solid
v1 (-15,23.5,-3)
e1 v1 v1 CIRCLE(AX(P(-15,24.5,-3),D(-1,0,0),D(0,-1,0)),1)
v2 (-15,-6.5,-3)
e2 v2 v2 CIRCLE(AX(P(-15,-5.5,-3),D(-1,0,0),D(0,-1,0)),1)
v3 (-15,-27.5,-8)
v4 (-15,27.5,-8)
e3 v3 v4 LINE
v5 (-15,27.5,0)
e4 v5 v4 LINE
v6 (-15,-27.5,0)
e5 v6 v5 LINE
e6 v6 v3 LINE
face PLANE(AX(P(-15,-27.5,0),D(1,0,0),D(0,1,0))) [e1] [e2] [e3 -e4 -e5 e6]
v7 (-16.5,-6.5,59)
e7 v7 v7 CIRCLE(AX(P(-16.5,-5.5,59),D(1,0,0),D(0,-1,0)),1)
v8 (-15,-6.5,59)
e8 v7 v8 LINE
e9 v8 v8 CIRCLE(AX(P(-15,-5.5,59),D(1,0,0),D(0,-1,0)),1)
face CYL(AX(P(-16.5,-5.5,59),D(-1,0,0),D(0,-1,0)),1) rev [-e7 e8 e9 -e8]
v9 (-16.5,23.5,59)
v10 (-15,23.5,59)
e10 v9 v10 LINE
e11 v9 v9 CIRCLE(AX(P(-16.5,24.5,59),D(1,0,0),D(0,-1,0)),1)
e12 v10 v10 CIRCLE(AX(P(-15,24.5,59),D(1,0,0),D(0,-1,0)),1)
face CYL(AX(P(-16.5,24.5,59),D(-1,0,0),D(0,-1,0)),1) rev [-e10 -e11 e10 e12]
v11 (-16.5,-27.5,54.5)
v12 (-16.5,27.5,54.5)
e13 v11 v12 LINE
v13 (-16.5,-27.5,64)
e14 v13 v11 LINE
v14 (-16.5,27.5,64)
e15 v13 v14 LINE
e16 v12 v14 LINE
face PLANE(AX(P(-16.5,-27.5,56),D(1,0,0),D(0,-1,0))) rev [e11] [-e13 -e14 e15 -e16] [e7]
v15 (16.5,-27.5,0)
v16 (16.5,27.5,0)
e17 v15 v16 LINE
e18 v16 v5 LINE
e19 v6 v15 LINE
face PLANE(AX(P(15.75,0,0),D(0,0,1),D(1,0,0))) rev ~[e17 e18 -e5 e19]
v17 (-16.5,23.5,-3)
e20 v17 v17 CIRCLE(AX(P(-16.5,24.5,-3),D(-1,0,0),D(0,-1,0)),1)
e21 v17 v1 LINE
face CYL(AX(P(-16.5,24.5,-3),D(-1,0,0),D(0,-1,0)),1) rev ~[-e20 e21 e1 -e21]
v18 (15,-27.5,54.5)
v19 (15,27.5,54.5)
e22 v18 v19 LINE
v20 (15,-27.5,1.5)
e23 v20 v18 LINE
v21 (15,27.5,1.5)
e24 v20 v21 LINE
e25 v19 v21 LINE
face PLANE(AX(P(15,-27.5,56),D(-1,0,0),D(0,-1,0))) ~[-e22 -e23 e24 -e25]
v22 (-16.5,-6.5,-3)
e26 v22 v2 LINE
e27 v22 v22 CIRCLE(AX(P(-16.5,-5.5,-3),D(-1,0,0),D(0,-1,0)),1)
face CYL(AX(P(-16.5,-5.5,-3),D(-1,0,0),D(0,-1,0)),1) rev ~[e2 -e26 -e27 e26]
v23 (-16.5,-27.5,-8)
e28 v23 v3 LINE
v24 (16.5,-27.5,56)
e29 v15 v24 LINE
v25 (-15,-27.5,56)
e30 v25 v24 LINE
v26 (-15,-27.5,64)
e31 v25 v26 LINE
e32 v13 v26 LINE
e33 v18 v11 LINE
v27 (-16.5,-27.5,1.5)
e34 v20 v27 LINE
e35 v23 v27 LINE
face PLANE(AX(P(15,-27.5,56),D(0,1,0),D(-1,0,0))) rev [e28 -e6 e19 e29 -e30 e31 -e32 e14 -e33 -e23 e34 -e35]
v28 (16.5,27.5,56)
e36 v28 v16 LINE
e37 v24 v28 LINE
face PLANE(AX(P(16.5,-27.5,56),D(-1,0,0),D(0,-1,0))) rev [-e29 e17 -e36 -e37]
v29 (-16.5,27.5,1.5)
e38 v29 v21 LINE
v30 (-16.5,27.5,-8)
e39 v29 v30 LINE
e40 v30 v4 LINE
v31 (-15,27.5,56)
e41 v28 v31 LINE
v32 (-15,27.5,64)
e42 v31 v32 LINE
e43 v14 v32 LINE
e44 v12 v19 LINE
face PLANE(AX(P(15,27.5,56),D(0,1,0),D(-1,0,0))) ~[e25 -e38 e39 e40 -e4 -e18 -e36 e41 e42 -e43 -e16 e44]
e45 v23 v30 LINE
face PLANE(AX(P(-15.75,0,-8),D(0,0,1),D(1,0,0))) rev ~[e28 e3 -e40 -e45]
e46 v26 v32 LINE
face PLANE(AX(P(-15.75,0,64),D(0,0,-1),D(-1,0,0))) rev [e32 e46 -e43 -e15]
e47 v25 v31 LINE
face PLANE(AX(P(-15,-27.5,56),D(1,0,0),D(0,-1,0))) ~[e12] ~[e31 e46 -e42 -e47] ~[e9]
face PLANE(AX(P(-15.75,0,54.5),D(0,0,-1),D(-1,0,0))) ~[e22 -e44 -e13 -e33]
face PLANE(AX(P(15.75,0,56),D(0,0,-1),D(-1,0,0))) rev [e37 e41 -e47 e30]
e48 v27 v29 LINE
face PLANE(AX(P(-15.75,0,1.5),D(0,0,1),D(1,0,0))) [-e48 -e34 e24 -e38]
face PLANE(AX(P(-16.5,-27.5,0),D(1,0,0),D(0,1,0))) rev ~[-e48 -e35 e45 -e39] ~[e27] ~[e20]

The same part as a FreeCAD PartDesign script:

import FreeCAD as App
import Part
import Sketcher
from FreeCAD import Vector
Q = App.Units.Quantity

doc = App.newDocument("Part")
body = doc.addObject("PartDesign::Body", "Body")

sketch1 = body.newObject("Sketcher::SketchObject", "Sketch")
sketch1.AttachmentSupport = (doc.getObject("XY_Plane"), [""])
sketch1.MapMode = "FlatFace"
sketch1.addGeometry(Part.LineSegment(Vector(-15, 28, 0), Vector(-15, -28, 0)), False)
sketch1.addGeometry(Part.LineSegment(Vector(-15, -28, 0), Vector(15, -28, 0)), False)
sketch1.addGeometry(Part.LineSegment(Vector(15, -28, 0), Vector(15, 28, 0)), False)
sketch1.addGeometry(Part.LineSegment(Vector(15, 28, 0), Vector(-15, 28, 0)), False)
sketch1.addConstraint(Sketcher.Constraint("Coincident", 0, 2, 1, 1))
sketch1.addConstraint(Sketcher.Constraint("Coincident", 1, 2, 2, 1))
sketch1.addConstraint(Sketcher.Constraint("Coincident", 2, 2, 3, 1))
sketch1.addConstraint(Sketcher.Constraint("Coincident", 3, 2, 0, 1))
sketch1.addConstraint(Sketcher.Constraint("Vertical", 0))
sketch1.addConstraint(Sketcher.Constraint("Horizontal", 1))
sketch1.addConstraint(Sketcher.Constraint("Vertical", 2))
sketch1.addConstraint(Sketcher.Constraint("Horizontal", 3))
sketch1.addConstraint(Sketcher.Constraint("Symmetric", 0, 2, 2, 2, -1, 1))
sketch1.addConstraint(Sketcher.Constraint("DistanceX", 1, 1, 1, 2, Q("30 mm")))
sketch1.addConstraint(Sketcher.Constraint("DistanceY", 0, 2, 0, 1, Q("55 mm")))
pad1 = body.newObject("PartDesign::Pad", "Pad")
pad1.Profile = sketch1
pad1.Length = 1.5

sketch2 = body.newObject("Sketcher::SketchObject", "Sketch001")
sketch2.AttachmentSupport = (doc.getObject("XY_Plane"), [""])
sketch2.MapMode = "FlatFace"
sketch2.addGeometry(Part.LineSegment(Vector(-16.5, 27.5, 0), Vector(-16.5, -27.5, 0)), False)
sketch2.addGeometry(Part.LineSegment(Vector(-16.5, -27.5, 0), Vector(-15, -27.5, 0)), False)
sketch2.addGeometry(Part.LineSegment(Vector(-15, -27.5, 0), Vector(-15, 27.5, 0)), False)
sketch2.addGeometry(Part.LineSegment(Vector(-15, 27.5, 0), Vector(-16.5, 27.5, 0)), False)
sketch2.addConstraint(Sketcher.Constraint("Coincident", 0, 2, 1, 1))
sketch2.addConstraint(Sketcher.Constraint("Coincident", 1, 2, 2, 1))
sketch2.addConstraint(Sketcher.Constraint("Coincident", 2, 2, 3, 1))
sketch2.addConstraint(Sketcher.Constraint("Coincident", 3, 2, 0, 1))
sketch2.addConstraint(Sketcher.Constraint("Vertical", 0))
sketch2.addConstraint(Sketcher.Constraint("Horizontal", 1))
sketch2.addConstraint(Sketcher.Constraint("Vertical", 2))
sketch2.addConstraint(Sketcher.Constraint("Horizontal", 3))
sketch2.addConstraint(Sketcher.Constraint("DistanceY", 0, 2, 0, 1, Q("55 mm")))
sketch2.addConstraint(Sketcher.Constraint("DistanceX", 1, 1, 1, 2, Q("1.5 mm")))
sketch2.addConstraint(Sketcher.Constraint("DistanceX", 1, 2, -1, 1, Q("15 mm")))
sketch2.addConstraint(Sketcher.Constraint("DistanceY", 0, 2, -1, 1, Q("27.5 mm")))
pad2 = body.newObject("PartDesign::Pad", "Pad001")
pad2.Profile = sketch2
pad2.Type = "TwoLengths"
pad2.Length = 1.5
pad2.Length2 = 8

sketch3 = body.newObject("Sketcher::SketchObject", "Sketch002")
sketch3.AttachmentSupport = (doc.getObject("XY_Plane"), [""])
sketch3.MapMode = "FlatFace"
sketch3.addGeometry(Part.LineSegment(Vector(15, 27.5, 0), Vector(15, -27.5, 0)), False)
sketch3.addGeometry(Part.LineSegment(Vector(15, -27.5, 0), Vector(16.5, -27.5, 0)), False)
sketch3.addGeometry(Part.LineSegment(Vector(16.5, -27.5, 0), Vector(16.5, 27.5, 0)), False)
sketch3.addGeometry(Part.LineSegment(Vector(16.5, 27.5, 0), Vector(15, 27.5, 0)), False)
sketch3.addConstraint(Sketcher.Constraint("Coincident", 0, 2, 1, 1))
sketch3.addConstraint(Sketcher.Constraint("Coincident", 1, 2, 2, 1))
sketch3.addConstraint(Sketcher.Constraint("Coincident", 2, 2, 3, 1))
sketch3.addConstraint(Sketcher.Constraint("Coincident", 3, 2, 0, 1))
sketch3.addConstraint(Sketcher.Constraint("Vertical", 0))
sketch3.addConstraint(Sketcher.Constraint("Horizontal", 1))
sketch3.addConstraint(Sketcher.Constraint("Vertical", 2))
sketch3.addConstraint(Sketcher.Constraint("Horizontal", 3))
sketch3.addConstraint(Sketcher.Constraint("DistanceY", 0, 2, 0, 1, Q("55 mm")))
sketch3.addConstraint(Sketcher.Constraint("DistanceX", 1, 1, 1, 2, Q("1.5 mm")))
sketch3.addConstraint(Sketcher.Constraint("DistanceX", -1, 1, 0, 2, Q("15 mm")))
sketch3.addConstraint(Sketcher.Constraint("DistanceY", 0, 2, -1, 1, Q("27.5 mm")))
pad3 = body.newObject("PartDesign::Pad", "Pad002")
pad3.Profile = sketch3
pad3.Length = 28

sketch4 = body.newObject("Sketcher::SketchObject", "Sketch003")
sketch4.AttachmentSupport = (doc.getObject("YZ_Plane"), [""])
sketch4.MapMode = "FlatFace"
sketch4.AttachmentOffset = App.Placement(Vector(0, 0, -16.5), App.Rotation())
sketch4.addGeometry(Part.Circle(Vector(24.5, -3, 0), Vector(0, 0, 1), 1), False)
sketch4.addGeometry(Part.Circle(Vector(-5.5, -3, 0), Vector(0, 0, 1), 1), False)
sketch4.addConstraint(Sketcher.Constraint("Equal", 0, 1))
sketch4.addConstraint(Sketcher.Constraint("Horizontal", 0, 3, 1, 3))
sketch4.addConstraint(Sketcher.Constraint("Diameter", 0, Q("2 mm")))
sketch4.addConstraint(Sketcher.Constraint("DistanceY", 0, 3, -1, 1, Q("3 mm")))
sketch4.addConstraint(Sketcher.Constraint("DistanceX", 1, 3, 0, 3, Q("30 mm")))
sketch4.addConstraint(Sketcher.Constraint("DistanceX", -1, 1, 0, 3, Q("24.5 mm")))
pocket1 = body.newObject("PartDesign::Pocket", "Pocket")
pocket1.Profile = sketch4
pocket1.Type = "ThroughAll"
pocket1.Reversed = True
body2 = doc.addObject("PartDesign::Body", "Body001")
doc.recompute()

body2.BaseFeature = body
doc.recompute()

mirroring = doc.addObject("Part::Mirroring", "Mirroring")
mirroring.Source = body
mirroring.Base = Vector(15.75, 0, 28)
mirroring.Normal = Vector(0, 0, 1)
body3 = doc.addObject("PartDesign::Body", "Body002")
body3.BaseFeature = mirroring
boolean = body2.newObject("PartDesign::Boolean", "Boolean")
boolean.Type = "Fuse"
boolean.addObjects([body3])
doc.recompute()
mirroring.Visibility = False

doc.recompute()
